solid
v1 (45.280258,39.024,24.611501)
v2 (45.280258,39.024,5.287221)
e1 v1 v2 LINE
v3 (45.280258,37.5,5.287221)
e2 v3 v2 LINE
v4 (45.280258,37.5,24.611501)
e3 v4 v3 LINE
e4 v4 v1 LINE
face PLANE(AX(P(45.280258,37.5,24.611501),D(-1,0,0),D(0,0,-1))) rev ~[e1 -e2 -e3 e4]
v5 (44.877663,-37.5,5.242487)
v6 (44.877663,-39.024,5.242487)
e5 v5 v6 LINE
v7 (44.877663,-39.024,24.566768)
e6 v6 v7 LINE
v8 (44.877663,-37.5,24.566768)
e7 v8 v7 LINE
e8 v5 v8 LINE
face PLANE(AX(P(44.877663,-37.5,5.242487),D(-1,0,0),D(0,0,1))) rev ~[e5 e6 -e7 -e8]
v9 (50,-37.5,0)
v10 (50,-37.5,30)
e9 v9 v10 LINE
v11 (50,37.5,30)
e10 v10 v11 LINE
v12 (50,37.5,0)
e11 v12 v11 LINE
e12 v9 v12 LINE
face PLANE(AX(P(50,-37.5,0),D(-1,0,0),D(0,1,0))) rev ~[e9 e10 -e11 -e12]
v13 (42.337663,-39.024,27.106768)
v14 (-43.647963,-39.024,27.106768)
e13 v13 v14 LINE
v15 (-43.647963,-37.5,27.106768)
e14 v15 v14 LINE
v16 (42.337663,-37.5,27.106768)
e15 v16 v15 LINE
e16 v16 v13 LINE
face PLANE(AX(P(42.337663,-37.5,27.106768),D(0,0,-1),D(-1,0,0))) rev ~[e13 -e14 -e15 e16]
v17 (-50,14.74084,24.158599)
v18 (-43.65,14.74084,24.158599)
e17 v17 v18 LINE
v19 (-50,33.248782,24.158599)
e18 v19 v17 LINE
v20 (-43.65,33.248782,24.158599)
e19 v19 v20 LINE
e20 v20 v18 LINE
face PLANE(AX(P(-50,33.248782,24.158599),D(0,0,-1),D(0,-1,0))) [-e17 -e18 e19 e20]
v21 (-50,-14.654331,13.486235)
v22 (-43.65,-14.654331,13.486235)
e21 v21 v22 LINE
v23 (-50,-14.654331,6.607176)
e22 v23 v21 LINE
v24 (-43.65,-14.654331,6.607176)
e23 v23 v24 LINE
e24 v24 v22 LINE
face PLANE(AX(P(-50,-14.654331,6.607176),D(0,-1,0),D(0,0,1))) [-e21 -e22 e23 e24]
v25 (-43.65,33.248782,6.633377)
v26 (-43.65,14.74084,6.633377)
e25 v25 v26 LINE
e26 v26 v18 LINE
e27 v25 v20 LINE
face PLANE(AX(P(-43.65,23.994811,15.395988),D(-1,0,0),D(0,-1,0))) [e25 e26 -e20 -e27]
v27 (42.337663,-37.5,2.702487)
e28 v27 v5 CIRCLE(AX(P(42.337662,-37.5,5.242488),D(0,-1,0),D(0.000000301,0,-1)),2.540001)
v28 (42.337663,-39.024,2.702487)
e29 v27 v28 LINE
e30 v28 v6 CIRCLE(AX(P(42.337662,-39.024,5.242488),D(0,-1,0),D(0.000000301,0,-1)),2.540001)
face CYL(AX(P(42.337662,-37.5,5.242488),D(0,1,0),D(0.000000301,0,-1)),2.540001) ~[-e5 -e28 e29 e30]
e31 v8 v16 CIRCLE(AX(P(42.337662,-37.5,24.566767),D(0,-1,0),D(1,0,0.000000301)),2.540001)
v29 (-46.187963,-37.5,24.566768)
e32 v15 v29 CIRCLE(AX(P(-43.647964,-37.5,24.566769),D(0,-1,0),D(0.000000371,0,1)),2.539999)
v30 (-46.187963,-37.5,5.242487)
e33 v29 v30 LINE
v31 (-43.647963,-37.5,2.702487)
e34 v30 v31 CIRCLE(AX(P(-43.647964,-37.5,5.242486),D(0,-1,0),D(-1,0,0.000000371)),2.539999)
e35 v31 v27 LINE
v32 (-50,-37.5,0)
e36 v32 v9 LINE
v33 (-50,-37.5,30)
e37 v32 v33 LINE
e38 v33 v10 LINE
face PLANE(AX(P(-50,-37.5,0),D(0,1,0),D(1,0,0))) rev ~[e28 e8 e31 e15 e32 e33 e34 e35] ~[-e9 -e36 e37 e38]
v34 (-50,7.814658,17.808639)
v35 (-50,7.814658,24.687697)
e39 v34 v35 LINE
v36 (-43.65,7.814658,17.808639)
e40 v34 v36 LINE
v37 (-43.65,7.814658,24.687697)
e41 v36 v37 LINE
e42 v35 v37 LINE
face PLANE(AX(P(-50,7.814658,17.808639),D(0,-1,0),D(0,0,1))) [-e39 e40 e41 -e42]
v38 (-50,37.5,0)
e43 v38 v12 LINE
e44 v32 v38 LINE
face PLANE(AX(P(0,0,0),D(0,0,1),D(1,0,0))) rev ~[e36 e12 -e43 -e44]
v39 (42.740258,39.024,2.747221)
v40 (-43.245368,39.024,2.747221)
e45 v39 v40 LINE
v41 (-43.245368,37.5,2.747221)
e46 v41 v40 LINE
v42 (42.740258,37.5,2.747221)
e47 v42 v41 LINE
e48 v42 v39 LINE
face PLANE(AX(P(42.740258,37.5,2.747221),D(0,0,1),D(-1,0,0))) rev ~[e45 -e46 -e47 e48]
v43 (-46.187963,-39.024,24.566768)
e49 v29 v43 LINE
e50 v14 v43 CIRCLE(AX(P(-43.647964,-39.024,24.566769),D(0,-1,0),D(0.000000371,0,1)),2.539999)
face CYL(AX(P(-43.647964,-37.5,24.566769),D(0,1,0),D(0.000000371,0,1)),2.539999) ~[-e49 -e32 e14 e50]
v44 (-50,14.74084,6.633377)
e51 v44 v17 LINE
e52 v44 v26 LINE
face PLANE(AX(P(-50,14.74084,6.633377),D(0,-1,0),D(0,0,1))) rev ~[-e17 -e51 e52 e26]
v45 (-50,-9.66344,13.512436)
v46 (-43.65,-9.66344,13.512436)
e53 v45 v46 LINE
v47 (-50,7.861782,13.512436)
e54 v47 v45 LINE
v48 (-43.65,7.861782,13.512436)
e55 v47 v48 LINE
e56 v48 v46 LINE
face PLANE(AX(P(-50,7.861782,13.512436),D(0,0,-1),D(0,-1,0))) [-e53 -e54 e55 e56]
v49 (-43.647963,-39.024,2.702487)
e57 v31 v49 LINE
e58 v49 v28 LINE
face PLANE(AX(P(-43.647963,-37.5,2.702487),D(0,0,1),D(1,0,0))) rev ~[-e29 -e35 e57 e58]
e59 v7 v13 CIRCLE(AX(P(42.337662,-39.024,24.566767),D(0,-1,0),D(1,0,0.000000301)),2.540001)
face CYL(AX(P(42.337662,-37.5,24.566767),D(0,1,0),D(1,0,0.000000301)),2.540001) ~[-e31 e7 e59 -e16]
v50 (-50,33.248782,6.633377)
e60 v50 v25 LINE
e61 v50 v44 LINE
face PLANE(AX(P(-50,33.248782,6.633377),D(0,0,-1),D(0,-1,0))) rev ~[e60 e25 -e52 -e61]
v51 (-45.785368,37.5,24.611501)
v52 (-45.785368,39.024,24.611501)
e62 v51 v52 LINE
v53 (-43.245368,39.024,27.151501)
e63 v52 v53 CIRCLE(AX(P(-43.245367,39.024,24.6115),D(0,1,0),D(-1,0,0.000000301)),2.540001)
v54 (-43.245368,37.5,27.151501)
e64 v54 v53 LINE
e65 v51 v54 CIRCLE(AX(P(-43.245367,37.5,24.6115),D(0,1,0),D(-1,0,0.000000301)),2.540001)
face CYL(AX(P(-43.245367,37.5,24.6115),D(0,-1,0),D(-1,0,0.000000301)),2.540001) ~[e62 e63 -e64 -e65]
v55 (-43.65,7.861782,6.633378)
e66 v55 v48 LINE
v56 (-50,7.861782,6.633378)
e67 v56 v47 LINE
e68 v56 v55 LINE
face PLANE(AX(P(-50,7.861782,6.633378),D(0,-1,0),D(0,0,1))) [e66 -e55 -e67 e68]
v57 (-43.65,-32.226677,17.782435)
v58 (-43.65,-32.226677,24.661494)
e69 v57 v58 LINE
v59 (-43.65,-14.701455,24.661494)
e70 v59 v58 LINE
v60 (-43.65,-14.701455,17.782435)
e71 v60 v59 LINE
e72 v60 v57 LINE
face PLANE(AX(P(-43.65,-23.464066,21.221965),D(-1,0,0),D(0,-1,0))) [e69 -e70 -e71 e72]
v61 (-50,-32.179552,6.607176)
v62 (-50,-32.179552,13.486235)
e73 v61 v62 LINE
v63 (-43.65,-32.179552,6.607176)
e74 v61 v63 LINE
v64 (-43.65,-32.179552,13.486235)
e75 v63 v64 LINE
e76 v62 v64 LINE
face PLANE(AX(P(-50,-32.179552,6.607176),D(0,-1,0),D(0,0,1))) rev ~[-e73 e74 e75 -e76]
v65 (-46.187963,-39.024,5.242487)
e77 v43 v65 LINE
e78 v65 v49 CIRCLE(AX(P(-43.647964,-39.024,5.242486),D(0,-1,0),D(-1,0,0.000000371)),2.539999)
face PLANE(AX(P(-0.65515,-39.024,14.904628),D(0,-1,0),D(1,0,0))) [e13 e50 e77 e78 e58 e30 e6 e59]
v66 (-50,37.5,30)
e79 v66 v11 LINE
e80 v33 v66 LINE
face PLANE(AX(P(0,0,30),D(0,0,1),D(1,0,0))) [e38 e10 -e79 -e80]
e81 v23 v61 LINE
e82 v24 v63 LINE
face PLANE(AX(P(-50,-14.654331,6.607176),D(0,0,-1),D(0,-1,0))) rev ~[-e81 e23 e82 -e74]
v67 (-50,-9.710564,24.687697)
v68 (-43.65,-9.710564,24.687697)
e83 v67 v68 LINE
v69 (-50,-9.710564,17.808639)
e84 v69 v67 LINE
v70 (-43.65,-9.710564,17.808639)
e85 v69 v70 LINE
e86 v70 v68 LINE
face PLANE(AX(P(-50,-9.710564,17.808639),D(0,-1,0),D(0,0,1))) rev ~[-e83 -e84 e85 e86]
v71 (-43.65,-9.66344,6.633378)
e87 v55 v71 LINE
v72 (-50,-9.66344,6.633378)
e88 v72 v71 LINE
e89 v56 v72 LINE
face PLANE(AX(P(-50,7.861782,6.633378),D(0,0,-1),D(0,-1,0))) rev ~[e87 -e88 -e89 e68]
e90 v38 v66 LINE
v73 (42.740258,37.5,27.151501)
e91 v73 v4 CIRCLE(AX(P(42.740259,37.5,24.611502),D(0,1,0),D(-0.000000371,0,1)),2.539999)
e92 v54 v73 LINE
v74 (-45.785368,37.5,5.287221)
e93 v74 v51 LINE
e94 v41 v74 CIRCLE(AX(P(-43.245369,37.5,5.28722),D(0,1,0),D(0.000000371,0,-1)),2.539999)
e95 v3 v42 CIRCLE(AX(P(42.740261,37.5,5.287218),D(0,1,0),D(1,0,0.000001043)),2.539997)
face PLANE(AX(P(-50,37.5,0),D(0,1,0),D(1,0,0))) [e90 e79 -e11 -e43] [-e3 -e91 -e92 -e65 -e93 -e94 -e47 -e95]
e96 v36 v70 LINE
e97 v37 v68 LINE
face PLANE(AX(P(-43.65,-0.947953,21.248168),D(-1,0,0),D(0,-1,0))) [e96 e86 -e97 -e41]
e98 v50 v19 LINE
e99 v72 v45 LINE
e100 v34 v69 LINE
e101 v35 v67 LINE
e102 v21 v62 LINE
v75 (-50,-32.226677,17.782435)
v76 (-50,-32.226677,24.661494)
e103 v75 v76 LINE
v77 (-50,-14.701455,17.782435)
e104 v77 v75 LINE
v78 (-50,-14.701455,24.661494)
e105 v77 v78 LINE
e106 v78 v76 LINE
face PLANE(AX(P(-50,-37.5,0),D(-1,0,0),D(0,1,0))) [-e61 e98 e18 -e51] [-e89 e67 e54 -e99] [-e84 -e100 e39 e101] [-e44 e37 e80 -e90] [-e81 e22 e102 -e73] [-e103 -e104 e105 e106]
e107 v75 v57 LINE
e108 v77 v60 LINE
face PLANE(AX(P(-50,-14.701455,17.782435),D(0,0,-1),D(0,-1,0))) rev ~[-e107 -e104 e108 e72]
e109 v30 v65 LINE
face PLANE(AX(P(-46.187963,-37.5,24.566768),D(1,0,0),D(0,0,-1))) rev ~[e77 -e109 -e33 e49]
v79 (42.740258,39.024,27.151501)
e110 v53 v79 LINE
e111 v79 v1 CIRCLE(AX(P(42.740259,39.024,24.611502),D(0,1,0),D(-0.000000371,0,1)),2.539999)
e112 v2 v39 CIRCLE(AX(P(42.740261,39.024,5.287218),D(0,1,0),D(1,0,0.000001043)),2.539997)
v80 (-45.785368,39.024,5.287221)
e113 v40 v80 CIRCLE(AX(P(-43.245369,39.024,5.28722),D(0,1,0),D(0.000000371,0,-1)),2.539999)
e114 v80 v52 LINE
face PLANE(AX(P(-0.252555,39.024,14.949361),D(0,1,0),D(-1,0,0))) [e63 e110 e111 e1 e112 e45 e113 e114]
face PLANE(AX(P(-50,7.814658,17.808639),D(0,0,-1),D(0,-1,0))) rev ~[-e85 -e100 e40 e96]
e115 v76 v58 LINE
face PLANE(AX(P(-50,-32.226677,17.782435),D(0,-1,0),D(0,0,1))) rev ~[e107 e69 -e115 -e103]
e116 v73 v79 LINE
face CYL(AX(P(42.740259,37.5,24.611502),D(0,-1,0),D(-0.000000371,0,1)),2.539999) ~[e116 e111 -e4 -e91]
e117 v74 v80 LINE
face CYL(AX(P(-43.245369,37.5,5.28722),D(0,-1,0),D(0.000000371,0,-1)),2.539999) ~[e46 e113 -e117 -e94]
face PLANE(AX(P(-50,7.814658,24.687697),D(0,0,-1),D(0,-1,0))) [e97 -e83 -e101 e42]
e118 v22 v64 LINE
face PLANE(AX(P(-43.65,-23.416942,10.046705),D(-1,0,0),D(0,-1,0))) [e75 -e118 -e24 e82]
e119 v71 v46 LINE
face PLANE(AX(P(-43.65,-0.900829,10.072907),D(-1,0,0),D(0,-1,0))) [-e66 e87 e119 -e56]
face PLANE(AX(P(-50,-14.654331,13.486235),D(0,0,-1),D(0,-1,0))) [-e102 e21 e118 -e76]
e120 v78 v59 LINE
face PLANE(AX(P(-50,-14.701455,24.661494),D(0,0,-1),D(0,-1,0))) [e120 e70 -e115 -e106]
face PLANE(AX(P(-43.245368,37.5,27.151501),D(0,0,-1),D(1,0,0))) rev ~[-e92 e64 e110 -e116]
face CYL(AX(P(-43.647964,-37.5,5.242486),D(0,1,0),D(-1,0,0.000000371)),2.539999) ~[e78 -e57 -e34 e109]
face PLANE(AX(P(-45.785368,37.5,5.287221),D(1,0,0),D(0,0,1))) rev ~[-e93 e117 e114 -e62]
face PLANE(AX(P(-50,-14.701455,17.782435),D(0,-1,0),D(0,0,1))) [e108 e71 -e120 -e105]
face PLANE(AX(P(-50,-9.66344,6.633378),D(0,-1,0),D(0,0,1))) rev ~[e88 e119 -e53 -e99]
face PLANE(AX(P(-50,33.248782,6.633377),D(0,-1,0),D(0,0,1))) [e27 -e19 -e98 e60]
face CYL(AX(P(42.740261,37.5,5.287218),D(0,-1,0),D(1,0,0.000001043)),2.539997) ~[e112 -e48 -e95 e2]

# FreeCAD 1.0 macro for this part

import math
import FreeCAD as App
import Part
import Sketcher

V = App.Vector
Q = App.Units.Quantity

doc = App.newDocument("Part")
params = doc.addObject("Spreadsheet::Sheet", "Params")
for row, (alias, value) in enumerate([
    ("pad1_length", "30 mm"),
    ("sketch2_radius", "0.1 in"),
    ("pad2_length", "0.06 in"),
    ("sketch3_radius", "0.1 in"),
    ("pad3_length", "0.06 in"),
    ("pocket1_length", "0.25 in"),
], start=1):
    params.set(f"A{row}", alias)
    params.set(f"B{row}", "=" + value)
    params.setAlias(f"B{row}", alias)

body = doc.addObject("PartDesign::Body", "Body")

# Sketch on XY plane
sketch1 = doc.addObject("Sketcher::SketchObject", "Sketch")
body.addObject(sketch1)
sketch1.AttachmentSupport = (doc.XY_Plane, [""])
sketch1.MapMode = "FlatFace"
sketch1.addGeometry(Part.LineSegment(V(-50, 38, 0), V(-50, -38, 0)), False)
sketch1.addGeometry(Part.LineSegment(V(-50, -38, 0), V(50, -38, 0)), False)
sketch1.addGeometry(Part.LineSegment(V(50, -38, 0), V(50, 38, 0)), False)
sketch1.addGeometry(Part.LineSegment(V(50, 38, 0), V(-50, 38, 0)), False)
sketch1.addConstraint(Sketcher.Constraint("Coincident", 0, 2, 1, 1))
sketch1.addConstraint(Sketcher.Constraint("Coincident", 1, 2, 2, 1))
sketch1.addConstraint(Sketcher.Constraint("Coincident", 2, 2, 3, 1))
sketch1.addConstraint(Sketcher.Constraint("Coincident", 3, 2, 0, 1))
sketch1.addConstraint(Sketcher.Constraint("Vertical", 0))
sketch1.addConstraint(Sketcher.Constraint("Horizontal", 1))
sketch1.addConstraint(Sketcher.Constraint("Vertical", 2))
sketch1.addConstraint(Sketcher.Constraint("Horizontal", 3))
sketch1.addConstraint(Sketcher.Constraint("Symmetric", 0, 2, 2, 2, -1, 1))
sketch1.addConstraint(Sketcher.Constraint("DistanceX", 1, 1, 1, 2, 100.0))
sketch1.addConstraint(Sketcher.Constraint("DistanceY", 0, 2, 0, 1, 75.0))
pad1 = doc.addObject("PartDesign::Pad", "Pad")
body.addObject(pad1)
pad1.Profile = sketch1
pad1.setExpression("Length", "Params.pad1_length")

# Sketch on XZ plane
sketch2 = doc.addObject("Sketcher::SketchObject", "Sketch001")
body.addObject(sketch2)
sketch2.AttachmentSupport = (doc.XZ_Plane, [""])
sketch2.MapMode = "FlatFace"
sketch2.AttachmentOffset = App.Placement(V(0, 0, 37.5), App.Rotation())
sketch2.addGeometry(Part.LineSegment(V(42.3, 27.1, 0), V(-43.6, 27.1, 0)), False)
sketch2.addGeometry(Part.ArcOfCircle(Part.Circle(V(-43.6, 24.6, 0), V(0, 0, 1), 2.5), math.radians(90), math.radians(180)), False)
sketch2.addGeometry(Part.LineSegment(V(-46.2, 24.6, 0), V(-46.2, 5.2, 0)), False)
sketch2.addGeometry(Part.ArcOfCircle(Part.Circle(V(-43.6, 5.2, 0), V(0, 0, 1), 2.5), math.radians(180), math.radians(270)), False)
sketch2.addGeometry(Part.LineSegment(V(-43.6, 2.7, 0), V(42.3, 2.7, 0)), False)
sketch2.addGeometry(Part.ArcOfCircle(Part.Circle(V(42.3, 5.2, 0), V(0, 0, 1), 2.5), math.radians(-90), math.radians(0)), False)
sketch2.addGeometry(Part.LineSegment(V(44.9, 5.2, 0), V(44.9, 24.6, 0)), False)
sketch2.addGeometry(Part.ArcOfCircle(Part.Circle(V(42.3, 24.6, 0), V(0, 0, 1), 2.5), math.radians(0), math.radians(90)), False)
sketch2.addConstraint(Sketcher.Constraint("Tangent", 0, 2, 1, 1))
sketch2.addConstraint(Sketcher.Constraint("Tangent", 1, 2, 2, 1))
sketch2.addConstraint(Sketcher.Constraint("Tangent", 2, 2, 3, 1))
sketch2.addConstraint(Sketcher.Constraint("Tangent", 3, 2, 4, 1))
sketch2.addConstraint(Sketcher.Constraint("Tangent", 4, 2, 5, 1))
sketch2.addConstraint(Sketcher.Constraint("Tangent", 5, 2, 6, 1))
sketch2.addConstraint(Sketcher.Constraint("Tangent", 6, 2, 7, 1))
sketch2.addConstraint(Sketcher.Constraint("Tangent", 7, 2, 0, 1))
sketch2.addConstraint(Sketcher.Constraint("Horizontal", 0))
sketch2.addConstraint(Sketcher.Constraint("Vertical", 2))
sketch2.addConstraint(Sketcher.Constraint("Horizontal", 4))
sketch2.addConstraint(Sketcher.Constraint("Vertical", 6))
sketch2.addConstraint(Sketcher.Constraint("Equal", 1, 3))
sketch2.addConstraint(Sketcher.Constraint("Equal", 3, 5))
sketch2.addConstraint(Sketcher.Constraint("Equal", 5, 7))
sketch2.addConstraint(Sketcher.Constraint("Radius", 1, Q("0.1 in")))
sketch2.addConstraint(Sketcher.Constraint("DistanceY", 2, 2, 2, 1, 19.324281))
sketch2.addConstraint(Sketcher.Constraint("DistanceX", 0, 2, 0, 1, 85.985626))
sketch2.addConstraint(Sketcher.Constraint("DistanceY", -1, 1, 1, 3, 24.566769))
sketch2.addConstraint(Sketcher.Constraint("DistanceX", 1, 3, -1, 1, 43.647964))
sketch2.setExpression("Constraints[15]", "Params.sketch2_radius")
pad2 = doc.addObject("PartDesign::Pad", "Pad001")
body.addObject(pad2)
pad2.Profile = sketch2
pad2.setExpression("Length", "Params.pad2_length")

# Sketch on XZ plane
sketch3 = doc.addObject("Sketcher::SketchObject", "Sketch002")
body.addObject(sketch3)
sketch3.AttachmentSupport = (doc.XZ_Plane, [""])
sketch3.MapMode = "FlatFace"
sketch3.AttachmentOffset = App.Placement(V(0, 0, -37.5), App.Rotation())
sketch3.addGeometry(Part.LineSegment(V(-43.2, 27.2, 0), V(42.7, 27.2, 0)), False)
sketch3.addGeometry(Part.ArcOfCircle(Part.Circle(V(42.7, 24.6, 0), V(0, 0, 1), 2.5), math.radians(0), math.radians(90)), False)
sketch3.addGeometry(Part.LineSegment(V(45.3, 24.6, 0), V(45.3, 5.3, 0)), False)
sketch3.addGeometry(Part.ArcOfCircle(Part.Circle(V(42.7, 5.3, 0), V(0, 0, 1), 2.5), math.radians(-90), math.radians(0)), False)
sketch3.addGeometry(Part.LineSegment(V(42.7, 2.7, 0), V(-43.2, 2.7, 0)), False)
sketch3.addGeometry(Part.ArcOfCircle(Part.Circle(V(-43.2, 5.3, 0), V(0, 0, 1), 2.5), math.radians(180), math.radians(270)), False)
sketch3.addGeometry(Part.LineSegment(V(-45.8, 5.3, 0), V(-45.8, 24.6, 0)), False)
sketch3.addGeometry(Part.ArcOfCircle(Part.Circle(V(-43.2, 24.6, 0), V(0, 0, 1), 2.5), math.radians(90), math.radians(180)), False)
sketch3.addConstraint(Sketcher.Constraint("Tangent", 0, 2, 1, 2))
sketch3.addConstraint(Sketcher.Constraint("Tangent", 1, 1, 2, 1))
sketch3.addConstraint(Sketcher.Constraint("Tangent", 2, 2, 3, 2))
sketch3.addConstraint(Sketcher.Constraint("Tangent", 3, 1, 4, 1))
sketch3.addConstraint(Sketcher.Constraint("Tangent", 4, 2, 5, 2))
sketch3.addConstraint(Sketcher.Constraint("Tangent", 5, 1, 6, 1))
sketch3.addConstraint(Sketcher.Constraint("Tangent", 6, 2, 7, 2))
sketch3.addConstraint(Sketcher.Constraint("Tangent", 7, 1, 0, 1))
sketch3.addConstraint(Sketcher.Constraint("Horizontal", 0))
sketch3.addConstraint(Sketcher.Constraint("Vertical", 2))
sketch3.addConstraint(Sketcher.Constraint("Horizontal", 4))
sketch3.addConstraint(Sketcher.Constraint("Vertical", 6))
sketch3.addConstraint(Sketcher.Constraint("Equal", 1, 3))
sketch3.addConstraint(Sketcher.Constraint("Equal", 3, 5))
sketch3.addConstraint(Sketcher.Constraint("Equal", 5, 7))
sketch3.addConstraint(Sketcher.Constraint("Radius", 1, Q("0.1 in")))
sketch3.addConstraint(Sketcher.Constraint("DistanceY", 2, 2, 2, 1, 19.32428))
sketch3.addConstraint(Sketcher.Constraint("DistanceY", -1, 1, 1, 3, 24.611502))
sketch3.addConstraint(Sketcher.Constraint("DistanceX", 0, 1, 0, 2, 85.985626))
sketch3.addConstraint(Sketcher.Constraint("DistanceX", -1, 1, 1, 3, 42.740259))
sketch3.setExpression("Constraints[15]", "Params.sketch3_radius")
pad3 = doc.addObject("PartDesign::Pad", "Pad002")
body.addObject(pad3)
pad3.Profile = sketch3
pad3.setExpression("Length", "Params.pad3_length")
pad3.Reversed = True

# Sketch on YZ plane
sketch4 = doc.addObject("Sketcher::SketchObject", "Sketch003")
body.addObject(sketch4)
sketch4.AttachmentSupport = (doc.YZ_Plane, [""])
sketch4.MapMode = "FlatFace"
sketch4.AttachmentOffset = App.Placement(V(0, 0, -50), App.Rotation())
sketch4.addGeometry(Part.LineSegment(V(33, 24, 0), V(33, 7, 0)), False)
sketch4.addGeometry(Part.LineSegment(V(33, 7, 0), V(15, 7, 0)), False)
sketch4.addGeometry(Part.LineSegment(V(15, 7, 0), V(15, 24, 0)), False)
sketch4.addGeometry(Part.LineSegment(V(15, 24, 0), V(33, 24, 0)), False)
sketch4.addGeometry(Part.LineSegment(V(8, 14, 0), V(8, 7, 0)), False)
sketch4.addGeometry(Part.LineSegment(V(8, 7, 0), V(-10, 7, 0)), False)
sketch4.addGeometry(Part.LineSegment(V(-10, 7, 0), V(-10, 14, 0)), False)
sketch4.addGeometry(Part.LineSegment(V(-10, 14, 0), V(8, 14, 0)), False)
sketch4.addGeometry(Part.LineSegment(V(8, 25, 0), V(8, 18, 0)), False)
sketch4.addGeometry(Part.LineSegment(V(8, 18, 0), V(-10, 18, 0)), False)
sketch4.addGeometry(Part.LineSegment(V(-10, 18, 0), V(-10, 25, 0)), False)
sketch4.addGeometry(Part.LineSegment(V(-10, 25, 0), V(8, 25, 0)), False)
sketch4.addGeometry(Part.LineSegment(V(-15, 13, 0), V(-15, 7, 0)), False)
sketch4.addGeometry(Part.LineSegment(V(-15, 7, 0), V(-32, 7, 0)), False)
sketch4.addGeometry(Part.LineSegment(V(-32, 7, 0), V(-32, 13, 0)), False)
sketch4.addGeometry(Part.LineSegment(V(-32, 13, 0), V(-15, 13, 0)), False)
sketch4.addGeometry(Part.LineSegment(V(-15, 25, 0), V(-15, 18, 0)), False)
sketch4.addGeometry(Part.LineSegment(V(-15, 18, 0), V(-32, 18, 0)), False)
sketch4.addGeometry(Part.LineSegment(V(-32, 18, 0), V(-32, 25, 0)), False)
sketch4.addGeometry(Part.LineSegment(V(-32, 25, 0), V(-15, 25, 0)), False)
sketch4.addConstraint(Sketcher.Constraint("Coincident", 0, 2, 1, 1))
sketch4.addConstraint(Sketcher.Constraint("Coincident", 1, 2, 2, 1))
sketch4.addConstraint(Sketcher.Constraint("Coincident", 2, 2, 3, 1))
sketch4.addConstraint(Sketcher.Constraint("Coincident", 3, 2, 0, 1))
sketch4.addConstraint(Sketcher.Constraint("Coincident", 4, 2, 5, 1))
sketch4.addConstraint(Sketcher.Constraint("Coincident", 5, 2, 6, 1))
sketch4.addConstraint(Sketcher.Constraint("Coincident", 6, 2, 7, 1))
sketch4.addConstraint(Sketcher.Constraint("Coincident", 7, 2, 4, 1))
sketch4.addConstraint(Sketcher.Constraint("Coincident", 8, 2, 9, 1))
sketch4.addConstraint(Sketcher.Constraint("Coincident", 9, 2, 10, 1))
sketch4.addConstraint(Sketcher.Constraint("Coincident", 10, 2, 11, 1))
sketch4.addConstraint(Sketcher.Constraint("Coincident", 11, 2, 8, 1))
sketch4.addConstraint(Sketcher.Constraint("Coincident", 12, 2, 13, 1))
sketch4.addConstraint(Sketcher.Constraint("Coincident", 13, 2, 14, 1))
sketch4.addConstraint(Sketcher.Constraint("Coincident", 14, 2, 15, 1))
sketch4.addConstraint(Sketcher.Constraint("Coincident", 15, 2, 12, 1))
sketch4.addConstraint(Sketcher.Constraint("Coincident", 16, 2, 17, 1))
sketch4.addConstraint(Sketcher.Constraint("Coincident", 17, 2, 18, 1))
sketch4.addConstraint(Sketcher.Constraint("Coincident", 18, 2, 19, 1))
sketch4.addConstraint(Sketcher.Constraint("Coincident", 19, 2, 16, 1))
sketch4.addConstraint(Sketcher.Constraint("Vertical", 0))
sketch4.addConstraint(Sketcher.Constraint("Horizontal", 1))
sketch4.addConstraint(Sketcher.Constraint("Vertical", 2))
sketch4.addConstraint(Sketcher.Constraint("Horizontal", 3))
sketch4.addConstraint(Sketcher.Constraint("Vertical", 4))
sketch4.addConstraint(Sketcher.Constraint("Horizontal", 5))
sketch4.addConstraint(Sketcher.Constraint("Vertical", 6))
sketch4.addConstraint(Sketcher.Constraint("Horizontal", 7))
sketch4.addConstraint(Sketcher.Constraint("Vertical", 8))
sketch4.addConstraint(Sketcher.Constraint("Horizontal", 9))
sketch4.addConstraint(Sketcher.Constraint("Vertical", 10))
sketch4.addConstraint(Sketcher.Constraint("Horizontal", 11))
sketch4.addConstraint(Sketcher.Constraint("Vertical", 12))
sketch4.addConstraint(Sketcher.Constraint("Horizontal", 13))
sketch4.addConstraint(Sketcher.Constraint("Vertical", 14))
sketch4.addConstraint(Sketcher.Constraint("Horizontal", 15))
sketch4.addConstraint(Sketcher.Constraint("Vertical", 16))
sketch4.addConstraint(Sketcher.Constraint("Horizontal", 17))
sketch4.addConstraint(Sketcher.Constraint("Vertical", 18))
sketch4.addConstraint(Sketcher.Constraint("Horizontal", 19))
sketch4.addConstraint(Sketcher.Constraint("Horizontal", 1, 2, 4, 2))
sketch4.addConstraint(Sketcher.Constraint("Equal", 7, 9))
sketch4.addConstraint(Sketcher.Constraint("Equal", 11, 13))
sketch4.addConstraint(Sketcher.Constraint("Equal", 15, 17))
sketch4.addConstraint(Sketcher.Constraint("Equal", 19, 0))
sketch4.addConstraint(Sketcher.Constraint("Equal", 6, 8))
sketch4.addConstraint(Sketcher.Constraint("Equal", 10, 12))
sketch4.addConstraint(Sketcher.Constraint("Equal", 14, 16))
sketch4.addConstraint(Sketcher.Constraint("DistanceY", 5, 2, 10, 2, Q("0.7108 in")))
sketch4.addConstraint(Sketcher.Constraint("DistanceY", 13, 2, 18, 2, Q("0.7108 in")))
sketch4.addConstraint(Sketcher.Constraint("DistanceX", 1, 2, 1, 1, 18.507942))
sketch4.addConstraint(Sketcher.Constraint("DistanceX", 5, 2, 5, 1, 17.525221))
sketch4.addConstraint(Sketcher.Constraint("DistanceY", 8, 2, 8, 1, 6.879059))
sketch4.addConstraint(Sketcher.Constraint("DistanceY", -1, 1, 2, 2, 24.158599))
sketch4.addConstraint(Sketcher.Constraint("DistanceX", 4, 2, 0, 2, 25.387))
sketch4.addConstraint(Sketcher.Constraint("DistanceY", 14, 2, 6, 2, 0.026201))
sketch4.addConstraint(Sketcher.Constraint("DistanceX", -1, 1, 1, 2, 14.74084))
sketch4.addConstraint(Sketcher.Constraint("DistanceX", 12, 2, -1, 1, 14.654331))
sketch4.addConstraint(Sketcher.Constraint("DistanceX", 13, 2, 9, 2, 22.468989))
sketch4.addConstraint(Sketcher.Constraint("DistanceX", 16, 2, 9, 2, 4.990891))
pocket1 = doc.addObject("PartDesign::Pocket", "Pocket")
body.addObject(pocket1)
pocket1.Profile = sketch4
pocket1.setExpression("Length", "Params.pocket1_length")
pocket1.Reversed = True

doc.recompute()
